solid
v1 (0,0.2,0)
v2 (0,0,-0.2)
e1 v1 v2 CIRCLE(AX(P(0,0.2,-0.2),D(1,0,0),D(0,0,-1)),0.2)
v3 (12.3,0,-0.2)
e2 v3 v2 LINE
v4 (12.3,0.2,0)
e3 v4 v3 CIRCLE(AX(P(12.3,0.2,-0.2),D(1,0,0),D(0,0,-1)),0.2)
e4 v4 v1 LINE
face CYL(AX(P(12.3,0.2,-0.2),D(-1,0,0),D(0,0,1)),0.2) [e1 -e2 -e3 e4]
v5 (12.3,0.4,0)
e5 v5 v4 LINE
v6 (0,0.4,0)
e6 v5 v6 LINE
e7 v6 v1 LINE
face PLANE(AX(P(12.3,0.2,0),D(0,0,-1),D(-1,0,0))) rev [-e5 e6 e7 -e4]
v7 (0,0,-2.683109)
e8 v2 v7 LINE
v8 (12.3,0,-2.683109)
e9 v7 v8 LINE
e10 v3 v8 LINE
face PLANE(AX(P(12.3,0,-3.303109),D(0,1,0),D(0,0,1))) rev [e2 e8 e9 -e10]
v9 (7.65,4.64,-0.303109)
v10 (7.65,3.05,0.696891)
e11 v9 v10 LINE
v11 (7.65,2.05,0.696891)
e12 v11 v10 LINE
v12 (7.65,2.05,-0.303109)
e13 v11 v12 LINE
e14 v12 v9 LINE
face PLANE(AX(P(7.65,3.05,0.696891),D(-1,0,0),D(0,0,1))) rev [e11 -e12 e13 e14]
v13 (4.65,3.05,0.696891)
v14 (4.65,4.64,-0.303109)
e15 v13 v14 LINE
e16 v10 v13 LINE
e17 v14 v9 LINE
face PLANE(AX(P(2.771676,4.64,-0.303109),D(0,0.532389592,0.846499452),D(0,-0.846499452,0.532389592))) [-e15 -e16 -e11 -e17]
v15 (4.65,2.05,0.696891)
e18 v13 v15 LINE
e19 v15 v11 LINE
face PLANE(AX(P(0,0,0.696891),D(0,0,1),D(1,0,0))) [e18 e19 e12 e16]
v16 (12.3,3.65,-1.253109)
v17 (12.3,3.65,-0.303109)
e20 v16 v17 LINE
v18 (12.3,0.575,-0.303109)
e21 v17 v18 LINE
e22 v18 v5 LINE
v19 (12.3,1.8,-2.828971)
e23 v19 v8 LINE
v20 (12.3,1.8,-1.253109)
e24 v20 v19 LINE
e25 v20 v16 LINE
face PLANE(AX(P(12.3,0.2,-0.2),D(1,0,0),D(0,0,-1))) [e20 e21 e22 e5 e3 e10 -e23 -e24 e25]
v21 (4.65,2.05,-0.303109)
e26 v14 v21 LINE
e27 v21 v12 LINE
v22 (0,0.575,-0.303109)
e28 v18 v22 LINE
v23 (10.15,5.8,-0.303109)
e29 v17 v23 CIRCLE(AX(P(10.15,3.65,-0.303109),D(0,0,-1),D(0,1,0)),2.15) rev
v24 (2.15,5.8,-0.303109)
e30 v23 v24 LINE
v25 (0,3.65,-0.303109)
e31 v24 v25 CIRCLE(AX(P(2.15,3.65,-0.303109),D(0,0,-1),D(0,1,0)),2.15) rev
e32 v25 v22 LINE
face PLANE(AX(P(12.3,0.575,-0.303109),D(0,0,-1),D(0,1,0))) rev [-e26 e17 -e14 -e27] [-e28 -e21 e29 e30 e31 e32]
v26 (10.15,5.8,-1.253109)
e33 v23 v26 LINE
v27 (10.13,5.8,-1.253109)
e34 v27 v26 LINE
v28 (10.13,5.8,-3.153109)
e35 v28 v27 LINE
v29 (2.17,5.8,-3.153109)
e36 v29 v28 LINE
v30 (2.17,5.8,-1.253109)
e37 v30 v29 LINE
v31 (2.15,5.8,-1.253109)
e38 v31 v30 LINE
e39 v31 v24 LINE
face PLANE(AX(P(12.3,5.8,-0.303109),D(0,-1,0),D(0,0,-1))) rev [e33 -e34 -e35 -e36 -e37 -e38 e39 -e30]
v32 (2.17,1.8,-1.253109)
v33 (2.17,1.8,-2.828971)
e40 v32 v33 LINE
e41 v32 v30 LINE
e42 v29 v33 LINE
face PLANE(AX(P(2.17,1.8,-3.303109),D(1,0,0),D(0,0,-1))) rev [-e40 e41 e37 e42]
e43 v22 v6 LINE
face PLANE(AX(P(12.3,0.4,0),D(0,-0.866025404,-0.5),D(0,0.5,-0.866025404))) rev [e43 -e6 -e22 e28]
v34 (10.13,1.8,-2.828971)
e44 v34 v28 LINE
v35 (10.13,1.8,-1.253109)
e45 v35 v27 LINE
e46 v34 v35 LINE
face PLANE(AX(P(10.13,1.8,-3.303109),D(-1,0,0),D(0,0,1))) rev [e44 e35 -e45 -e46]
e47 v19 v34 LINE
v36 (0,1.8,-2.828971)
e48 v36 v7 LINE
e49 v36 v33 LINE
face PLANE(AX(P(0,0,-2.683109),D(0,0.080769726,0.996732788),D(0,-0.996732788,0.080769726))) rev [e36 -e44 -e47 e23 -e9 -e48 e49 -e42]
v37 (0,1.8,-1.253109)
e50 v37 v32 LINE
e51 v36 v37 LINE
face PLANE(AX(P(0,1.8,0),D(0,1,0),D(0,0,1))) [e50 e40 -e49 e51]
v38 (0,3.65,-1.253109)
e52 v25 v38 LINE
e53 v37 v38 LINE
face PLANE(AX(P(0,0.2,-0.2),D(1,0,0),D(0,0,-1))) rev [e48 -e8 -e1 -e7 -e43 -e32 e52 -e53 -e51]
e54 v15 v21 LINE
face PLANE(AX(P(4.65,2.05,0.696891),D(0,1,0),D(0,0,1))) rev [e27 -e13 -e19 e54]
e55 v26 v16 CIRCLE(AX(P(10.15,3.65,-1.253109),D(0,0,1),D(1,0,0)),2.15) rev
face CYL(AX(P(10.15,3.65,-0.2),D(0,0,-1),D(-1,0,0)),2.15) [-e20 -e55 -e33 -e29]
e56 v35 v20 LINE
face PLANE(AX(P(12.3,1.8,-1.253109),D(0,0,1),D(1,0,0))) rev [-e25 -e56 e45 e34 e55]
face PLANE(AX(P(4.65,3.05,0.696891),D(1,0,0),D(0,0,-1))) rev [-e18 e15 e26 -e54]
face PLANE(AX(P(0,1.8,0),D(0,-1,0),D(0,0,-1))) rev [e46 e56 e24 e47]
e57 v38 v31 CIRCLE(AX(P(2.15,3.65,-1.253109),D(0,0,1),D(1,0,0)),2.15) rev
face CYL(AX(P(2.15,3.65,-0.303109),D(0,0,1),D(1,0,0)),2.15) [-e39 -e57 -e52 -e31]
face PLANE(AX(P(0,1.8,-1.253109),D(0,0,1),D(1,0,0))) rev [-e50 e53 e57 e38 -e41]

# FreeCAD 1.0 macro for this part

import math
import FreeCAD as App
import Part
import Sketcher

V = App.Vector
Q = App.Units.Quantity


def edges_at(feature, points):
    """Names of the edges that pass closest to the given points."""
    edges = feature.Shape.Edges
    near = lambda p: min(range(len(edges)), key=lambda i: edges[i].distToShape(Part.Vertex(*p))[0])
    return sorted({f"Edge{near(p) + 1}" for p in points})

doc = App.newDocument("Part")
body = doc.addObject("PartDesign::Body", "Body")

sketch1 = body.newObject("Sketcher::SketchObject", "Sketch")
sketch1.AttachmentSupport = (doc.getObject("YZ_Plane"), [""])
sketch1.MapMode = "FlatFace"
sketch1.addGeometry([
    Part.LineSegment(V(0.4, 0, 0), V(0.2, 0, 0)),
    Part.ArcOfCircle(Part.Circle(V(0.2, -0.2, 0), V(0, 0, 1), 0.2), math.radians(90), math.radians(180)),
    Part.LineSegment(V(0, -0.2, 0), V(0, -3.303109, 0)),
    Part.LineSegment(V(0, -3.303109, 0), V(5.8, -3.303109, 0)),
    Part.LineSegment(V(5.8, -3.303109, 0), V(5.8, -0.303109, 0)),
    Part.LineSegment(V(5.8, -0.303109, 0), V(0.575, -0.303109, 0)),
    Part.LineSegment(V(0.575, -0.303109, 0), V(0.4, 0, 0)),
], False)
sketch1.addConstraint([
    Sketcher.Constraint("Tangent", 0, 2, 1, 1),
    Sketcher.Constraint("Tangent", 1, 2, 2, 1),
    Sketcher.Constraint("Coincident", 2, 2, 3, 1),
    Sketcher.Constraint("Coincident", 3, 2, 4, 1),
    Sketcher.Constraint("Coincident", 4, 2, 5, 1),
    Sketcher.Constraint("Coincident", 5, 2, 6, 1),
    Sketcher.Constraint("Coincident", 6, 2, 0, 1),
    Sketcher.Constraint("Horizontal", 0),
    Sketcher.Constraint("Vertical", 2),
    Sketcher.Constraint("Horizontal", 3),
    Sketcher.Constraint("Vertical", 4),
    Sketcher.Constraint("Horizontal", 5),
    Sketcher.Constraint("PointOnObject", 0, 2, -1),
    Sketcher.Constraint("PointOnObject", 1, 2, -2),
    Sketcher.Constraint("Radius", 1, Q("0.2 mm")),
    Sketcher.Constraint("DistanceY", 4, 1, 4, 2, Q("3 mm")),
    Sketcher.Constraint("Angle", 6, Q("120 deg")),
    Sketcher.Constraint("DistanceX", 0, 2, 0, 1, Q("0.2 mm")),
    Sketcher.Constraint("DistanceX", 3, 1, 3, 2, Q("5.8 mm")),
    Sketcher.Constraint("Distance", 6, Q("0.35 mm")),
])
pad1 = body.newObject("PartDesign::Pad", "Pad")
pad1.Profile = sketch1
pad1.Length = 12.3

sketch2 = body.newObject("Sketcher::SketchObject", "Sketch001")
sketch2.AttachmentSupport = (doc.getObject("XZ_Plane"), [""])
sketch2.MapMode = "FlatFace"
sketch2.AttachmentOffset = App.Placement(V(0, 0, -5.8), App.Rotation())
sketch2.addGeometry([
    Part.LineSegment(V(0, -3.303109, 0), V(0, -1.253109, 0)),
    Part.LineSegment(V(0, -1.253109, 0), V(2.17, -1.253109, 0)),
    Part.LineSegment(V(2.17, -1.253109, 0), V(2.17, -3.303109, 0)),
    Part.LineSegment(V(2.17, -3.303109, 0), V(0, -3.303109, 0)),
    Part.LineSegment(V(10.13, -3.303109, 0), V(10.13, -1.253109, 0)),
    Part.LineSegment(V(10.13, -1.253109, 0), V(12.3, -1.253109, 0)),
    Part.LineSegment(V(12.3, -1.253109, 0), V(12.3, -3.303109, 0)),
    Part.LineSegment(V(12.3, -3.303109, 0), V(10.13, -3.303109, 0)),
], False)
sketch2.addConstraint([
    Sketcher.Constraint("Coincident", 0, 2, 1, 1),
    Sketcher.Constraint("Coincident", 1, 2, 2, 1),
    Sketcher.Constraint("Coincident", 2, 2, 3, 1),
    Sketcher.Constraint("Coincident", 3, 2, 0, 1),
    Sketcher.Constraint("Coincident", 4, 2, 5, 1),
    Sketcher.Constraint("Coincident", 5, 2, 6, 1),
    Sketcher.Constraint("Coincident", 6, 2, 7, 1),
    Sketcher.Constraint("Coincident", 7, 2, 4, 1),
    Sketcher.Constraint("Vertical", 0),
    Sketcher.Constraint("Horizontal", 1),
    Sketcher.Constraint("Vertical", 2),
    Sketcher.Constraint("Horizontal", 3),
    Sketcher.Constraint("Vertical", 4),
    Sketcher.Constraint("Horizontal", 5),
    Sketcher.Constraint("Vertical", 6),
    Sketcher.Constraint("Horizontal", 7),
    Sketcher.Constraint("PointOnObject", 0, 2, -2),
    Sketcher.Constraint("Horizontal", 1, 2, 4, 2),
    Sketcher.Constraint("Horizontal", 3, 2, 6, 2),
    Sketcher.Constraint("Equal", 3, 5),
    Sketcher.Constraint("DistanceX", 1, 1, 1, 2, Q("2.17 mm")),
    Sketcher.Constraint("DistanceY", 0, 1, 0, 2, Q("2.05 mm")),
    Sketcher.Constraint("DistanceX", -1, 1, 5, 2, Q("12.3 mm")),
    Sketcher.Constraint("DistanceY", 0, 2, -1, 1, Q("1.253109 mm")),
])
pocket1 = body.newObject("PartDesign::Pocket", "Pocket")
pocket1.Profile = sketch2
pocket1.Length = 4
pocket1.Reversed = True
doc.recompute()

fillet = body.newObject("PartDesign::Fillet", "Fillet")
fillet.Base = (pocket1, edges_at(pocket1, [(0, 5.8, -0.778), (12.3, 5.8, -0.778)]))
fillet.Radius = 2.15

sketch3 = body.newObject("Sketcher::SketchObject", "Sketch002")
sketch3.AttachmentSupport = (doc.getObject("XY_Plane"), [""])
sketch3.MapMode = "FlatFace"
sketch3.AttachmentOffset = App.Placement(V(0, 0, -0.303109), App.Rotation())
sketch3.addGeometry([
    Part.LineSegment(V(4.65, 3.05, 0), V(4.65, 2.05, 0)),
    Part.LineSegment(V(4.65, 2.05, 0), V(7.65, 2.05, 0)),
    Part.LineSegment(V(7.65, 2.05, 0), V(7.65, 3.05, 0)),
    Part.LineSegment(V(7.65, 3.05, 0), V(4.65, 3.05, 0)),
], False)
sketch3.addConstraint([
    Sketcher.Constraint("Coincident", 0, 2, 1, 1),
    Sketcher.Constraint("Coincident", 1, 2, 2, 1),
    Sketcher.Constraint("Coincident", 2, 2, 3, 1),
    Sketcher.Constraint("Coincident", 3, 2, 0, 1),
    Sketcher.Constraint("Vertical", 0),
    Sketcher.Constraint("Horizontal", 1),
    Sketcher.Constraint("Vertical", 2),
    Sketcher.Constraint("Horizontal", 3),
    Sketcher.Constraint("DistanceX", 1, 1, 1, 2, Q("3 mm")),
    Sketcher.Constraint("DistanceY", 0, 2, 0, 1, Q("1 mm")),
    Sketcher.Constraint("DistanceX", -1, 1, 0, 2, Q("4.65 mm")),
    Sketcher.Constraint("DistanceY", -1, 1, 0, 2, Q("2.05 mm")),
])
pad2 = body.newObject("PartDesign::Pad", "Pad001")
pad2.Profile = sketch3
pad2.Length = 1

sketch4 = body.newObject("Sketcher::SketchObject", "Sketch003")
sketch4.AttachmentSupport = (doc.getObject("YZ_Plane"), [""])
sketch4.MapMode = "FlatFace"
sketch4.AttachmentOffset = App.Placement(V(0, 0, 7.65), App.Rotation())
sketch4.addGeometry([
    Part.LineSegment(V(3.05, 0.696891, 0), V(3.05, -0.303109, 0)),
    Part.LineSegment(V(3.05, -0.303109, 0), V(4.64, -0.303109, 0)),
    Part.LineSegment(V(4.64, -0.303109, 0), V(3.05, 0.696891, 0)),
], False)
sketch4.addConstraint([
    Sketcher.Constraint("Coincident", 0, 2, 1, 1),
    Sketcher.Constraint("Coincident", 1, 2, 2, 1),
    Sketcher.Constraint("Coincident", 2, 2, 0, 1),
    Sketcher.Constraint("Vertical", 0),
    Sketcher.Constraint("Horizontal", 1),
    Sketcher.Constraint("DistanceY", 0, 2, 0, 1, Q("1 mm")),
    Sketcher.Constraint("DistanceX", 1, 1, 1, 2, Q("1.59 mm")),
    Sketcher.Constraint("DistanceX", -1, 1, 0, 2, Q("3.05 mm")),
    Sketcher.Constraint("DistanceY", 0, 2, -1, 1, Q("0.303109 mm")),
])
pad3 = body.newObject("PartDesign::Pad", "Pad002")
pad3.Profile = sketch4
pad3.Length = 3
pad3.Reversed = True

sketch5 = body.newObject("Sketcher::SketchObject", "Sketch004")
sketch5.AttachmentSupport = (doc.getObject("YZ_Plane"), [""])
sketch5.MapMode = "FlatFace"
sketch5.AttachmentOffset = App.Placement(V(0, 0, 12.3), App.Rotation())
sketch5.addGeometry([
    Part.LineSegment(V(0, -3.303109, 0), V(5.8, -3.303109, 0)),
    Part.LineSegment(V(5.8, -3.303109, 0), V(5.8, -3.153109, 0)),
    Part.LineSegment(V(5.8, -3.153109, 0), V(0, -2.683109, 0)),
    Part.LineSegment(V(0, -2.683109, 0), V(0, -3.303109, 0)),
], False)
sketch5.addConstraint([
    Sketcher.Constraint("Coincident", 0, 2, 1, 1),
    Sketcher.Constraint("Coincident", 1, 2, 2, 1),
    Sketcher.Constraint("Coincident", 2, 2, 3, 1),
    Sketcher.Constraint("Coincident", 3, 2, 0, 1),
    Sketcher.Constraint("Horizontal", 0),
    Sketcher.Constraint("Vertical", 1),
    Sketcher.Constraint("Vertical", 3),
    Sketcher.Constraint("PointOnObject", 2, 2, -2),
    Sketcher.Constraint("DistanceX", 0, 1, 0, 2, Q("5.8 mm")),
    Sketcher.Constraint("DistanceY", 1, 1, 1, 2, Q("0.15 mm")),
    Sketcher.Constraint("DistanceY", 3, 2, 3, 1, Q("0.62 mm")),
    Sketcher.Constraint("DistanceY", 0, 2, -1, 1, Q("3.303109 mm")),
])
pocket2 = body.newObject("PartDesign::Pocket", "Pocket001")
pocket2.Profile = sketch5
pocket2.Type = "ThroughAll"

doc.recompute()
